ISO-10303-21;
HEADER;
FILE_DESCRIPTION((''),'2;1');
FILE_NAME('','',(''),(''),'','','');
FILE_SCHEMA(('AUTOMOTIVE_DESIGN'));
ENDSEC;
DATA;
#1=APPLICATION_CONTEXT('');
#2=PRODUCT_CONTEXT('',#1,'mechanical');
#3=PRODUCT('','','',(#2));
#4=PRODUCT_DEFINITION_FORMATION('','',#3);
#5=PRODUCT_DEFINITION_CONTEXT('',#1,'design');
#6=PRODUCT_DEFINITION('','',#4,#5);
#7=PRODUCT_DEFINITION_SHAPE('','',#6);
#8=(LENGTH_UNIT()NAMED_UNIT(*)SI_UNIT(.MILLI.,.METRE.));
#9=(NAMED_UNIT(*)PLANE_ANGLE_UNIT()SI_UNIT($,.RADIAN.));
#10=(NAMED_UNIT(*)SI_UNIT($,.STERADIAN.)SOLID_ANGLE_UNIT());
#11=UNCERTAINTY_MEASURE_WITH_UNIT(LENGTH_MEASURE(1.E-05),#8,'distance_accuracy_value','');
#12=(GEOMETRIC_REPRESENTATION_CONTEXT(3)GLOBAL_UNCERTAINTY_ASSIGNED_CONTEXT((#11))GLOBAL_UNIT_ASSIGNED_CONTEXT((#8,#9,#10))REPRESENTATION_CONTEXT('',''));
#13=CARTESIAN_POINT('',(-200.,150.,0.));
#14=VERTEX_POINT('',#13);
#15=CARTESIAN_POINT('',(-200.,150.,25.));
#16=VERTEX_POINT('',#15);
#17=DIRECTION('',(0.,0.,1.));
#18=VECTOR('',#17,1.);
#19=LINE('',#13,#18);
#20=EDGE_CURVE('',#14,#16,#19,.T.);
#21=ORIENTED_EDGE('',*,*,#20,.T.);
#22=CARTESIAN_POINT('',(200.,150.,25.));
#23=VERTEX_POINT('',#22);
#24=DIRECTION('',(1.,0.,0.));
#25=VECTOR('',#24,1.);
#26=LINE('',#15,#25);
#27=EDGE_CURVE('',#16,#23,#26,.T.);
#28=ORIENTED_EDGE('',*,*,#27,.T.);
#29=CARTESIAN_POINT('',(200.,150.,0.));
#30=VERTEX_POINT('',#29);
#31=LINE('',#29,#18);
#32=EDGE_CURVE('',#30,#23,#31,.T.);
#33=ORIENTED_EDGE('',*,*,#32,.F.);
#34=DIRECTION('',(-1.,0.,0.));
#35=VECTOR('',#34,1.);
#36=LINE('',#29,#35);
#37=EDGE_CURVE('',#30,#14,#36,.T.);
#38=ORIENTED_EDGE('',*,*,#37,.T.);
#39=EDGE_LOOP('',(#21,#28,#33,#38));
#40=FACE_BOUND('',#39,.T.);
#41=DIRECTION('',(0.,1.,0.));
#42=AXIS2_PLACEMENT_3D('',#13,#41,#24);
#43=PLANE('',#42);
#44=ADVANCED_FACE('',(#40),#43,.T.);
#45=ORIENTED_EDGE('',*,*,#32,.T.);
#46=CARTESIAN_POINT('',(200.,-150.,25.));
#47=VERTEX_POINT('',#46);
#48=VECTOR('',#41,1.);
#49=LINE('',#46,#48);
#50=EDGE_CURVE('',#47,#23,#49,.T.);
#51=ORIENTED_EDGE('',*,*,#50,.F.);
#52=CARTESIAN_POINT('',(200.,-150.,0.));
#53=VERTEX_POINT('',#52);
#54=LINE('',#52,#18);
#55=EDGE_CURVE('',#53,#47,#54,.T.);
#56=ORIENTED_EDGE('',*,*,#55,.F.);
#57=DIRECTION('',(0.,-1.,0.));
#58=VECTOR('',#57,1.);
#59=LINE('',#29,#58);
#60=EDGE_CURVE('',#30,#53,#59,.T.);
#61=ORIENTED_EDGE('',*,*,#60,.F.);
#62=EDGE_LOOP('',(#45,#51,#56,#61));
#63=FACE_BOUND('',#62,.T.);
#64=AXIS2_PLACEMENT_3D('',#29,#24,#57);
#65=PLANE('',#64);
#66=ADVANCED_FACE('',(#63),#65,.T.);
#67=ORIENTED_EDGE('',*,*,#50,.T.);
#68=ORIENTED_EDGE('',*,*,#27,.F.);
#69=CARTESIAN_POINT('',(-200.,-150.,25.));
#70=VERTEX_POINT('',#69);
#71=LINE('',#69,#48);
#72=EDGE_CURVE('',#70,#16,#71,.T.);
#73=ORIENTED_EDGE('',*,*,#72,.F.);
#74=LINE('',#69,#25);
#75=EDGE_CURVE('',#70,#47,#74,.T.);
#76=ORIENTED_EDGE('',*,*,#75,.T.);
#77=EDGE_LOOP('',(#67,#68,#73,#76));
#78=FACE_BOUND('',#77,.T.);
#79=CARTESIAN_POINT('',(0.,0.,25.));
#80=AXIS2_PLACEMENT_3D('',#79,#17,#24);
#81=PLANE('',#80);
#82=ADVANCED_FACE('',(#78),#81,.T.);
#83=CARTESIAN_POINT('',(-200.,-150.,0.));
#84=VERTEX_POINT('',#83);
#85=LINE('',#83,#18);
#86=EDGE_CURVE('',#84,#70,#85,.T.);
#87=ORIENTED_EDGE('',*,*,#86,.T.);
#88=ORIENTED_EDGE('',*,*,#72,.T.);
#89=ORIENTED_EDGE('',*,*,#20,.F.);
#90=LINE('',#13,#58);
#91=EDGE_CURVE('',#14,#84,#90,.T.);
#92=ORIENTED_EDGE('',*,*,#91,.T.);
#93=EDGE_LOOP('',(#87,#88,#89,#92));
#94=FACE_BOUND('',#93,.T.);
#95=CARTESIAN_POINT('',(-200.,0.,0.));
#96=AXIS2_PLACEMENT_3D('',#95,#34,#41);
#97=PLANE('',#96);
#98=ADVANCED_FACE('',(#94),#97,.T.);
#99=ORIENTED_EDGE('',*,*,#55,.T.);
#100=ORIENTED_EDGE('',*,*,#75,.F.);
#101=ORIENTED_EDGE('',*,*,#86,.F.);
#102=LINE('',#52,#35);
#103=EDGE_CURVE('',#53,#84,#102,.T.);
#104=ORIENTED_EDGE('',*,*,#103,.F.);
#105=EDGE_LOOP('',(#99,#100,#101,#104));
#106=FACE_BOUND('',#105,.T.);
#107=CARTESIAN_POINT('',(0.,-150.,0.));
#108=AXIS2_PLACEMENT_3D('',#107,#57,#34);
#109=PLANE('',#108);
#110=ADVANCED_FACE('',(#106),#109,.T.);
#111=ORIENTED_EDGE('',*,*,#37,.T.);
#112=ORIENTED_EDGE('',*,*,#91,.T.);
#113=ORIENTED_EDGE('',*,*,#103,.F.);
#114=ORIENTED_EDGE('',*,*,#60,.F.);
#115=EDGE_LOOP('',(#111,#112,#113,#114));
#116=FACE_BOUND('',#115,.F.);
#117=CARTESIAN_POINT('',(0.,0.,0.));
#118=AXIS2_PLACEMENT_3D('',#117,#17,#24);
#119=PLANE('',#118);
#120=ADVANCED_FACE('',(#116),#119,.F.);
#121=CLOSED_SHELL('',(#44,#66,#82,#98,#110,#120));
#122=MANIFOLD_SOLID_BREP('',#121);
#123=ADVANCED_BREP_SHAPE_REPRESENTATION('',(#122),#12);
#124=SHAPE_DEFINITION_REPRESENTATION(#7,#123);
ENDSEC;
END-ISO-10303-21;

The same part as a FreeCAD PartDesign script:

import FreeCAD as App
import Part
import Sketcher

V = App.Vector

doc = App.newDocument("Part")
params = doc.addObject("Spreadsheet::Sheet", "Params")
for row, (alias, value) in enumerate([
    ("sketch1_width", "400 mm"),
    ("sketch1_height", "300 mm"),
    ("pad1_length", "25 mm"),
], start=1):
    params.set(f"A{row}", alias)
    params.set(f"B{row}", "=" + value)
    params.setAlias(f"B{row}", alias)

body = doc.addObject("PartDesign::Body", "Body")

# Sketch on XY plane
sketch1 = body.newObject("Sketcher::SketchObject", "Sketch")
sketch1.AttachmentSupport = (doc.getObject("XY_Plane"), [""])
sketch1.MapMode = "FlatFace"
sketch1.addGeometry([
    Part.LineSegment(V(-200, 150, 0), V(-200, -150, 0)),
    Part.LineSegment(V(-200, -150, 0), V(200, -150, 0)),
    Part.LineSegment(V(200, -150, 0), V(200, 150, 0)),
    Part.LineSegment(V(200, 150, 0), V(-200, 150, 0)),
], False)
sketch1.addConstraint([
    Sketcher.Constraint("Coincident", 0, 2, 1, 1),
    Sketcher.Constraint("Coincident", 1, 2, 2, 1),
    Sketcher.Constraint("Coincident", 2, 2, 3, 1),
    Sketcher.Constraint("Coincident", 3, 2, 0, 1),
    Sketcher.Constraint("Vertical", 0),
    Sketcher.Constraint("Horizontal", 1),
    Sketcher.Constraint("Vertical", 2),
    Sketcher.Constraint("Horizontal", 3),
    Sketcher.Constraint("Symmetric", 0, 2, 2, 2, -1, 1),
    Sketcher.Constraint("DistanceX", 1, 1, 1, 2, 400.0),
    Sketcher.Constraint("DistanceY", 0, 2, 0, 1, 300.0),
])
sketch1.setExpression("Constraints[9]", "Params.sketch1_width")
sketch1.setExpression("Constraints[10]", "Params.sketch1_height")
pad1 = body.newObject("PartDesign::Pad", "Pad")
pad1.Profile = sketch1
pad1.setExpression("Length", "Params.pad1_length")

doc.recompute()
